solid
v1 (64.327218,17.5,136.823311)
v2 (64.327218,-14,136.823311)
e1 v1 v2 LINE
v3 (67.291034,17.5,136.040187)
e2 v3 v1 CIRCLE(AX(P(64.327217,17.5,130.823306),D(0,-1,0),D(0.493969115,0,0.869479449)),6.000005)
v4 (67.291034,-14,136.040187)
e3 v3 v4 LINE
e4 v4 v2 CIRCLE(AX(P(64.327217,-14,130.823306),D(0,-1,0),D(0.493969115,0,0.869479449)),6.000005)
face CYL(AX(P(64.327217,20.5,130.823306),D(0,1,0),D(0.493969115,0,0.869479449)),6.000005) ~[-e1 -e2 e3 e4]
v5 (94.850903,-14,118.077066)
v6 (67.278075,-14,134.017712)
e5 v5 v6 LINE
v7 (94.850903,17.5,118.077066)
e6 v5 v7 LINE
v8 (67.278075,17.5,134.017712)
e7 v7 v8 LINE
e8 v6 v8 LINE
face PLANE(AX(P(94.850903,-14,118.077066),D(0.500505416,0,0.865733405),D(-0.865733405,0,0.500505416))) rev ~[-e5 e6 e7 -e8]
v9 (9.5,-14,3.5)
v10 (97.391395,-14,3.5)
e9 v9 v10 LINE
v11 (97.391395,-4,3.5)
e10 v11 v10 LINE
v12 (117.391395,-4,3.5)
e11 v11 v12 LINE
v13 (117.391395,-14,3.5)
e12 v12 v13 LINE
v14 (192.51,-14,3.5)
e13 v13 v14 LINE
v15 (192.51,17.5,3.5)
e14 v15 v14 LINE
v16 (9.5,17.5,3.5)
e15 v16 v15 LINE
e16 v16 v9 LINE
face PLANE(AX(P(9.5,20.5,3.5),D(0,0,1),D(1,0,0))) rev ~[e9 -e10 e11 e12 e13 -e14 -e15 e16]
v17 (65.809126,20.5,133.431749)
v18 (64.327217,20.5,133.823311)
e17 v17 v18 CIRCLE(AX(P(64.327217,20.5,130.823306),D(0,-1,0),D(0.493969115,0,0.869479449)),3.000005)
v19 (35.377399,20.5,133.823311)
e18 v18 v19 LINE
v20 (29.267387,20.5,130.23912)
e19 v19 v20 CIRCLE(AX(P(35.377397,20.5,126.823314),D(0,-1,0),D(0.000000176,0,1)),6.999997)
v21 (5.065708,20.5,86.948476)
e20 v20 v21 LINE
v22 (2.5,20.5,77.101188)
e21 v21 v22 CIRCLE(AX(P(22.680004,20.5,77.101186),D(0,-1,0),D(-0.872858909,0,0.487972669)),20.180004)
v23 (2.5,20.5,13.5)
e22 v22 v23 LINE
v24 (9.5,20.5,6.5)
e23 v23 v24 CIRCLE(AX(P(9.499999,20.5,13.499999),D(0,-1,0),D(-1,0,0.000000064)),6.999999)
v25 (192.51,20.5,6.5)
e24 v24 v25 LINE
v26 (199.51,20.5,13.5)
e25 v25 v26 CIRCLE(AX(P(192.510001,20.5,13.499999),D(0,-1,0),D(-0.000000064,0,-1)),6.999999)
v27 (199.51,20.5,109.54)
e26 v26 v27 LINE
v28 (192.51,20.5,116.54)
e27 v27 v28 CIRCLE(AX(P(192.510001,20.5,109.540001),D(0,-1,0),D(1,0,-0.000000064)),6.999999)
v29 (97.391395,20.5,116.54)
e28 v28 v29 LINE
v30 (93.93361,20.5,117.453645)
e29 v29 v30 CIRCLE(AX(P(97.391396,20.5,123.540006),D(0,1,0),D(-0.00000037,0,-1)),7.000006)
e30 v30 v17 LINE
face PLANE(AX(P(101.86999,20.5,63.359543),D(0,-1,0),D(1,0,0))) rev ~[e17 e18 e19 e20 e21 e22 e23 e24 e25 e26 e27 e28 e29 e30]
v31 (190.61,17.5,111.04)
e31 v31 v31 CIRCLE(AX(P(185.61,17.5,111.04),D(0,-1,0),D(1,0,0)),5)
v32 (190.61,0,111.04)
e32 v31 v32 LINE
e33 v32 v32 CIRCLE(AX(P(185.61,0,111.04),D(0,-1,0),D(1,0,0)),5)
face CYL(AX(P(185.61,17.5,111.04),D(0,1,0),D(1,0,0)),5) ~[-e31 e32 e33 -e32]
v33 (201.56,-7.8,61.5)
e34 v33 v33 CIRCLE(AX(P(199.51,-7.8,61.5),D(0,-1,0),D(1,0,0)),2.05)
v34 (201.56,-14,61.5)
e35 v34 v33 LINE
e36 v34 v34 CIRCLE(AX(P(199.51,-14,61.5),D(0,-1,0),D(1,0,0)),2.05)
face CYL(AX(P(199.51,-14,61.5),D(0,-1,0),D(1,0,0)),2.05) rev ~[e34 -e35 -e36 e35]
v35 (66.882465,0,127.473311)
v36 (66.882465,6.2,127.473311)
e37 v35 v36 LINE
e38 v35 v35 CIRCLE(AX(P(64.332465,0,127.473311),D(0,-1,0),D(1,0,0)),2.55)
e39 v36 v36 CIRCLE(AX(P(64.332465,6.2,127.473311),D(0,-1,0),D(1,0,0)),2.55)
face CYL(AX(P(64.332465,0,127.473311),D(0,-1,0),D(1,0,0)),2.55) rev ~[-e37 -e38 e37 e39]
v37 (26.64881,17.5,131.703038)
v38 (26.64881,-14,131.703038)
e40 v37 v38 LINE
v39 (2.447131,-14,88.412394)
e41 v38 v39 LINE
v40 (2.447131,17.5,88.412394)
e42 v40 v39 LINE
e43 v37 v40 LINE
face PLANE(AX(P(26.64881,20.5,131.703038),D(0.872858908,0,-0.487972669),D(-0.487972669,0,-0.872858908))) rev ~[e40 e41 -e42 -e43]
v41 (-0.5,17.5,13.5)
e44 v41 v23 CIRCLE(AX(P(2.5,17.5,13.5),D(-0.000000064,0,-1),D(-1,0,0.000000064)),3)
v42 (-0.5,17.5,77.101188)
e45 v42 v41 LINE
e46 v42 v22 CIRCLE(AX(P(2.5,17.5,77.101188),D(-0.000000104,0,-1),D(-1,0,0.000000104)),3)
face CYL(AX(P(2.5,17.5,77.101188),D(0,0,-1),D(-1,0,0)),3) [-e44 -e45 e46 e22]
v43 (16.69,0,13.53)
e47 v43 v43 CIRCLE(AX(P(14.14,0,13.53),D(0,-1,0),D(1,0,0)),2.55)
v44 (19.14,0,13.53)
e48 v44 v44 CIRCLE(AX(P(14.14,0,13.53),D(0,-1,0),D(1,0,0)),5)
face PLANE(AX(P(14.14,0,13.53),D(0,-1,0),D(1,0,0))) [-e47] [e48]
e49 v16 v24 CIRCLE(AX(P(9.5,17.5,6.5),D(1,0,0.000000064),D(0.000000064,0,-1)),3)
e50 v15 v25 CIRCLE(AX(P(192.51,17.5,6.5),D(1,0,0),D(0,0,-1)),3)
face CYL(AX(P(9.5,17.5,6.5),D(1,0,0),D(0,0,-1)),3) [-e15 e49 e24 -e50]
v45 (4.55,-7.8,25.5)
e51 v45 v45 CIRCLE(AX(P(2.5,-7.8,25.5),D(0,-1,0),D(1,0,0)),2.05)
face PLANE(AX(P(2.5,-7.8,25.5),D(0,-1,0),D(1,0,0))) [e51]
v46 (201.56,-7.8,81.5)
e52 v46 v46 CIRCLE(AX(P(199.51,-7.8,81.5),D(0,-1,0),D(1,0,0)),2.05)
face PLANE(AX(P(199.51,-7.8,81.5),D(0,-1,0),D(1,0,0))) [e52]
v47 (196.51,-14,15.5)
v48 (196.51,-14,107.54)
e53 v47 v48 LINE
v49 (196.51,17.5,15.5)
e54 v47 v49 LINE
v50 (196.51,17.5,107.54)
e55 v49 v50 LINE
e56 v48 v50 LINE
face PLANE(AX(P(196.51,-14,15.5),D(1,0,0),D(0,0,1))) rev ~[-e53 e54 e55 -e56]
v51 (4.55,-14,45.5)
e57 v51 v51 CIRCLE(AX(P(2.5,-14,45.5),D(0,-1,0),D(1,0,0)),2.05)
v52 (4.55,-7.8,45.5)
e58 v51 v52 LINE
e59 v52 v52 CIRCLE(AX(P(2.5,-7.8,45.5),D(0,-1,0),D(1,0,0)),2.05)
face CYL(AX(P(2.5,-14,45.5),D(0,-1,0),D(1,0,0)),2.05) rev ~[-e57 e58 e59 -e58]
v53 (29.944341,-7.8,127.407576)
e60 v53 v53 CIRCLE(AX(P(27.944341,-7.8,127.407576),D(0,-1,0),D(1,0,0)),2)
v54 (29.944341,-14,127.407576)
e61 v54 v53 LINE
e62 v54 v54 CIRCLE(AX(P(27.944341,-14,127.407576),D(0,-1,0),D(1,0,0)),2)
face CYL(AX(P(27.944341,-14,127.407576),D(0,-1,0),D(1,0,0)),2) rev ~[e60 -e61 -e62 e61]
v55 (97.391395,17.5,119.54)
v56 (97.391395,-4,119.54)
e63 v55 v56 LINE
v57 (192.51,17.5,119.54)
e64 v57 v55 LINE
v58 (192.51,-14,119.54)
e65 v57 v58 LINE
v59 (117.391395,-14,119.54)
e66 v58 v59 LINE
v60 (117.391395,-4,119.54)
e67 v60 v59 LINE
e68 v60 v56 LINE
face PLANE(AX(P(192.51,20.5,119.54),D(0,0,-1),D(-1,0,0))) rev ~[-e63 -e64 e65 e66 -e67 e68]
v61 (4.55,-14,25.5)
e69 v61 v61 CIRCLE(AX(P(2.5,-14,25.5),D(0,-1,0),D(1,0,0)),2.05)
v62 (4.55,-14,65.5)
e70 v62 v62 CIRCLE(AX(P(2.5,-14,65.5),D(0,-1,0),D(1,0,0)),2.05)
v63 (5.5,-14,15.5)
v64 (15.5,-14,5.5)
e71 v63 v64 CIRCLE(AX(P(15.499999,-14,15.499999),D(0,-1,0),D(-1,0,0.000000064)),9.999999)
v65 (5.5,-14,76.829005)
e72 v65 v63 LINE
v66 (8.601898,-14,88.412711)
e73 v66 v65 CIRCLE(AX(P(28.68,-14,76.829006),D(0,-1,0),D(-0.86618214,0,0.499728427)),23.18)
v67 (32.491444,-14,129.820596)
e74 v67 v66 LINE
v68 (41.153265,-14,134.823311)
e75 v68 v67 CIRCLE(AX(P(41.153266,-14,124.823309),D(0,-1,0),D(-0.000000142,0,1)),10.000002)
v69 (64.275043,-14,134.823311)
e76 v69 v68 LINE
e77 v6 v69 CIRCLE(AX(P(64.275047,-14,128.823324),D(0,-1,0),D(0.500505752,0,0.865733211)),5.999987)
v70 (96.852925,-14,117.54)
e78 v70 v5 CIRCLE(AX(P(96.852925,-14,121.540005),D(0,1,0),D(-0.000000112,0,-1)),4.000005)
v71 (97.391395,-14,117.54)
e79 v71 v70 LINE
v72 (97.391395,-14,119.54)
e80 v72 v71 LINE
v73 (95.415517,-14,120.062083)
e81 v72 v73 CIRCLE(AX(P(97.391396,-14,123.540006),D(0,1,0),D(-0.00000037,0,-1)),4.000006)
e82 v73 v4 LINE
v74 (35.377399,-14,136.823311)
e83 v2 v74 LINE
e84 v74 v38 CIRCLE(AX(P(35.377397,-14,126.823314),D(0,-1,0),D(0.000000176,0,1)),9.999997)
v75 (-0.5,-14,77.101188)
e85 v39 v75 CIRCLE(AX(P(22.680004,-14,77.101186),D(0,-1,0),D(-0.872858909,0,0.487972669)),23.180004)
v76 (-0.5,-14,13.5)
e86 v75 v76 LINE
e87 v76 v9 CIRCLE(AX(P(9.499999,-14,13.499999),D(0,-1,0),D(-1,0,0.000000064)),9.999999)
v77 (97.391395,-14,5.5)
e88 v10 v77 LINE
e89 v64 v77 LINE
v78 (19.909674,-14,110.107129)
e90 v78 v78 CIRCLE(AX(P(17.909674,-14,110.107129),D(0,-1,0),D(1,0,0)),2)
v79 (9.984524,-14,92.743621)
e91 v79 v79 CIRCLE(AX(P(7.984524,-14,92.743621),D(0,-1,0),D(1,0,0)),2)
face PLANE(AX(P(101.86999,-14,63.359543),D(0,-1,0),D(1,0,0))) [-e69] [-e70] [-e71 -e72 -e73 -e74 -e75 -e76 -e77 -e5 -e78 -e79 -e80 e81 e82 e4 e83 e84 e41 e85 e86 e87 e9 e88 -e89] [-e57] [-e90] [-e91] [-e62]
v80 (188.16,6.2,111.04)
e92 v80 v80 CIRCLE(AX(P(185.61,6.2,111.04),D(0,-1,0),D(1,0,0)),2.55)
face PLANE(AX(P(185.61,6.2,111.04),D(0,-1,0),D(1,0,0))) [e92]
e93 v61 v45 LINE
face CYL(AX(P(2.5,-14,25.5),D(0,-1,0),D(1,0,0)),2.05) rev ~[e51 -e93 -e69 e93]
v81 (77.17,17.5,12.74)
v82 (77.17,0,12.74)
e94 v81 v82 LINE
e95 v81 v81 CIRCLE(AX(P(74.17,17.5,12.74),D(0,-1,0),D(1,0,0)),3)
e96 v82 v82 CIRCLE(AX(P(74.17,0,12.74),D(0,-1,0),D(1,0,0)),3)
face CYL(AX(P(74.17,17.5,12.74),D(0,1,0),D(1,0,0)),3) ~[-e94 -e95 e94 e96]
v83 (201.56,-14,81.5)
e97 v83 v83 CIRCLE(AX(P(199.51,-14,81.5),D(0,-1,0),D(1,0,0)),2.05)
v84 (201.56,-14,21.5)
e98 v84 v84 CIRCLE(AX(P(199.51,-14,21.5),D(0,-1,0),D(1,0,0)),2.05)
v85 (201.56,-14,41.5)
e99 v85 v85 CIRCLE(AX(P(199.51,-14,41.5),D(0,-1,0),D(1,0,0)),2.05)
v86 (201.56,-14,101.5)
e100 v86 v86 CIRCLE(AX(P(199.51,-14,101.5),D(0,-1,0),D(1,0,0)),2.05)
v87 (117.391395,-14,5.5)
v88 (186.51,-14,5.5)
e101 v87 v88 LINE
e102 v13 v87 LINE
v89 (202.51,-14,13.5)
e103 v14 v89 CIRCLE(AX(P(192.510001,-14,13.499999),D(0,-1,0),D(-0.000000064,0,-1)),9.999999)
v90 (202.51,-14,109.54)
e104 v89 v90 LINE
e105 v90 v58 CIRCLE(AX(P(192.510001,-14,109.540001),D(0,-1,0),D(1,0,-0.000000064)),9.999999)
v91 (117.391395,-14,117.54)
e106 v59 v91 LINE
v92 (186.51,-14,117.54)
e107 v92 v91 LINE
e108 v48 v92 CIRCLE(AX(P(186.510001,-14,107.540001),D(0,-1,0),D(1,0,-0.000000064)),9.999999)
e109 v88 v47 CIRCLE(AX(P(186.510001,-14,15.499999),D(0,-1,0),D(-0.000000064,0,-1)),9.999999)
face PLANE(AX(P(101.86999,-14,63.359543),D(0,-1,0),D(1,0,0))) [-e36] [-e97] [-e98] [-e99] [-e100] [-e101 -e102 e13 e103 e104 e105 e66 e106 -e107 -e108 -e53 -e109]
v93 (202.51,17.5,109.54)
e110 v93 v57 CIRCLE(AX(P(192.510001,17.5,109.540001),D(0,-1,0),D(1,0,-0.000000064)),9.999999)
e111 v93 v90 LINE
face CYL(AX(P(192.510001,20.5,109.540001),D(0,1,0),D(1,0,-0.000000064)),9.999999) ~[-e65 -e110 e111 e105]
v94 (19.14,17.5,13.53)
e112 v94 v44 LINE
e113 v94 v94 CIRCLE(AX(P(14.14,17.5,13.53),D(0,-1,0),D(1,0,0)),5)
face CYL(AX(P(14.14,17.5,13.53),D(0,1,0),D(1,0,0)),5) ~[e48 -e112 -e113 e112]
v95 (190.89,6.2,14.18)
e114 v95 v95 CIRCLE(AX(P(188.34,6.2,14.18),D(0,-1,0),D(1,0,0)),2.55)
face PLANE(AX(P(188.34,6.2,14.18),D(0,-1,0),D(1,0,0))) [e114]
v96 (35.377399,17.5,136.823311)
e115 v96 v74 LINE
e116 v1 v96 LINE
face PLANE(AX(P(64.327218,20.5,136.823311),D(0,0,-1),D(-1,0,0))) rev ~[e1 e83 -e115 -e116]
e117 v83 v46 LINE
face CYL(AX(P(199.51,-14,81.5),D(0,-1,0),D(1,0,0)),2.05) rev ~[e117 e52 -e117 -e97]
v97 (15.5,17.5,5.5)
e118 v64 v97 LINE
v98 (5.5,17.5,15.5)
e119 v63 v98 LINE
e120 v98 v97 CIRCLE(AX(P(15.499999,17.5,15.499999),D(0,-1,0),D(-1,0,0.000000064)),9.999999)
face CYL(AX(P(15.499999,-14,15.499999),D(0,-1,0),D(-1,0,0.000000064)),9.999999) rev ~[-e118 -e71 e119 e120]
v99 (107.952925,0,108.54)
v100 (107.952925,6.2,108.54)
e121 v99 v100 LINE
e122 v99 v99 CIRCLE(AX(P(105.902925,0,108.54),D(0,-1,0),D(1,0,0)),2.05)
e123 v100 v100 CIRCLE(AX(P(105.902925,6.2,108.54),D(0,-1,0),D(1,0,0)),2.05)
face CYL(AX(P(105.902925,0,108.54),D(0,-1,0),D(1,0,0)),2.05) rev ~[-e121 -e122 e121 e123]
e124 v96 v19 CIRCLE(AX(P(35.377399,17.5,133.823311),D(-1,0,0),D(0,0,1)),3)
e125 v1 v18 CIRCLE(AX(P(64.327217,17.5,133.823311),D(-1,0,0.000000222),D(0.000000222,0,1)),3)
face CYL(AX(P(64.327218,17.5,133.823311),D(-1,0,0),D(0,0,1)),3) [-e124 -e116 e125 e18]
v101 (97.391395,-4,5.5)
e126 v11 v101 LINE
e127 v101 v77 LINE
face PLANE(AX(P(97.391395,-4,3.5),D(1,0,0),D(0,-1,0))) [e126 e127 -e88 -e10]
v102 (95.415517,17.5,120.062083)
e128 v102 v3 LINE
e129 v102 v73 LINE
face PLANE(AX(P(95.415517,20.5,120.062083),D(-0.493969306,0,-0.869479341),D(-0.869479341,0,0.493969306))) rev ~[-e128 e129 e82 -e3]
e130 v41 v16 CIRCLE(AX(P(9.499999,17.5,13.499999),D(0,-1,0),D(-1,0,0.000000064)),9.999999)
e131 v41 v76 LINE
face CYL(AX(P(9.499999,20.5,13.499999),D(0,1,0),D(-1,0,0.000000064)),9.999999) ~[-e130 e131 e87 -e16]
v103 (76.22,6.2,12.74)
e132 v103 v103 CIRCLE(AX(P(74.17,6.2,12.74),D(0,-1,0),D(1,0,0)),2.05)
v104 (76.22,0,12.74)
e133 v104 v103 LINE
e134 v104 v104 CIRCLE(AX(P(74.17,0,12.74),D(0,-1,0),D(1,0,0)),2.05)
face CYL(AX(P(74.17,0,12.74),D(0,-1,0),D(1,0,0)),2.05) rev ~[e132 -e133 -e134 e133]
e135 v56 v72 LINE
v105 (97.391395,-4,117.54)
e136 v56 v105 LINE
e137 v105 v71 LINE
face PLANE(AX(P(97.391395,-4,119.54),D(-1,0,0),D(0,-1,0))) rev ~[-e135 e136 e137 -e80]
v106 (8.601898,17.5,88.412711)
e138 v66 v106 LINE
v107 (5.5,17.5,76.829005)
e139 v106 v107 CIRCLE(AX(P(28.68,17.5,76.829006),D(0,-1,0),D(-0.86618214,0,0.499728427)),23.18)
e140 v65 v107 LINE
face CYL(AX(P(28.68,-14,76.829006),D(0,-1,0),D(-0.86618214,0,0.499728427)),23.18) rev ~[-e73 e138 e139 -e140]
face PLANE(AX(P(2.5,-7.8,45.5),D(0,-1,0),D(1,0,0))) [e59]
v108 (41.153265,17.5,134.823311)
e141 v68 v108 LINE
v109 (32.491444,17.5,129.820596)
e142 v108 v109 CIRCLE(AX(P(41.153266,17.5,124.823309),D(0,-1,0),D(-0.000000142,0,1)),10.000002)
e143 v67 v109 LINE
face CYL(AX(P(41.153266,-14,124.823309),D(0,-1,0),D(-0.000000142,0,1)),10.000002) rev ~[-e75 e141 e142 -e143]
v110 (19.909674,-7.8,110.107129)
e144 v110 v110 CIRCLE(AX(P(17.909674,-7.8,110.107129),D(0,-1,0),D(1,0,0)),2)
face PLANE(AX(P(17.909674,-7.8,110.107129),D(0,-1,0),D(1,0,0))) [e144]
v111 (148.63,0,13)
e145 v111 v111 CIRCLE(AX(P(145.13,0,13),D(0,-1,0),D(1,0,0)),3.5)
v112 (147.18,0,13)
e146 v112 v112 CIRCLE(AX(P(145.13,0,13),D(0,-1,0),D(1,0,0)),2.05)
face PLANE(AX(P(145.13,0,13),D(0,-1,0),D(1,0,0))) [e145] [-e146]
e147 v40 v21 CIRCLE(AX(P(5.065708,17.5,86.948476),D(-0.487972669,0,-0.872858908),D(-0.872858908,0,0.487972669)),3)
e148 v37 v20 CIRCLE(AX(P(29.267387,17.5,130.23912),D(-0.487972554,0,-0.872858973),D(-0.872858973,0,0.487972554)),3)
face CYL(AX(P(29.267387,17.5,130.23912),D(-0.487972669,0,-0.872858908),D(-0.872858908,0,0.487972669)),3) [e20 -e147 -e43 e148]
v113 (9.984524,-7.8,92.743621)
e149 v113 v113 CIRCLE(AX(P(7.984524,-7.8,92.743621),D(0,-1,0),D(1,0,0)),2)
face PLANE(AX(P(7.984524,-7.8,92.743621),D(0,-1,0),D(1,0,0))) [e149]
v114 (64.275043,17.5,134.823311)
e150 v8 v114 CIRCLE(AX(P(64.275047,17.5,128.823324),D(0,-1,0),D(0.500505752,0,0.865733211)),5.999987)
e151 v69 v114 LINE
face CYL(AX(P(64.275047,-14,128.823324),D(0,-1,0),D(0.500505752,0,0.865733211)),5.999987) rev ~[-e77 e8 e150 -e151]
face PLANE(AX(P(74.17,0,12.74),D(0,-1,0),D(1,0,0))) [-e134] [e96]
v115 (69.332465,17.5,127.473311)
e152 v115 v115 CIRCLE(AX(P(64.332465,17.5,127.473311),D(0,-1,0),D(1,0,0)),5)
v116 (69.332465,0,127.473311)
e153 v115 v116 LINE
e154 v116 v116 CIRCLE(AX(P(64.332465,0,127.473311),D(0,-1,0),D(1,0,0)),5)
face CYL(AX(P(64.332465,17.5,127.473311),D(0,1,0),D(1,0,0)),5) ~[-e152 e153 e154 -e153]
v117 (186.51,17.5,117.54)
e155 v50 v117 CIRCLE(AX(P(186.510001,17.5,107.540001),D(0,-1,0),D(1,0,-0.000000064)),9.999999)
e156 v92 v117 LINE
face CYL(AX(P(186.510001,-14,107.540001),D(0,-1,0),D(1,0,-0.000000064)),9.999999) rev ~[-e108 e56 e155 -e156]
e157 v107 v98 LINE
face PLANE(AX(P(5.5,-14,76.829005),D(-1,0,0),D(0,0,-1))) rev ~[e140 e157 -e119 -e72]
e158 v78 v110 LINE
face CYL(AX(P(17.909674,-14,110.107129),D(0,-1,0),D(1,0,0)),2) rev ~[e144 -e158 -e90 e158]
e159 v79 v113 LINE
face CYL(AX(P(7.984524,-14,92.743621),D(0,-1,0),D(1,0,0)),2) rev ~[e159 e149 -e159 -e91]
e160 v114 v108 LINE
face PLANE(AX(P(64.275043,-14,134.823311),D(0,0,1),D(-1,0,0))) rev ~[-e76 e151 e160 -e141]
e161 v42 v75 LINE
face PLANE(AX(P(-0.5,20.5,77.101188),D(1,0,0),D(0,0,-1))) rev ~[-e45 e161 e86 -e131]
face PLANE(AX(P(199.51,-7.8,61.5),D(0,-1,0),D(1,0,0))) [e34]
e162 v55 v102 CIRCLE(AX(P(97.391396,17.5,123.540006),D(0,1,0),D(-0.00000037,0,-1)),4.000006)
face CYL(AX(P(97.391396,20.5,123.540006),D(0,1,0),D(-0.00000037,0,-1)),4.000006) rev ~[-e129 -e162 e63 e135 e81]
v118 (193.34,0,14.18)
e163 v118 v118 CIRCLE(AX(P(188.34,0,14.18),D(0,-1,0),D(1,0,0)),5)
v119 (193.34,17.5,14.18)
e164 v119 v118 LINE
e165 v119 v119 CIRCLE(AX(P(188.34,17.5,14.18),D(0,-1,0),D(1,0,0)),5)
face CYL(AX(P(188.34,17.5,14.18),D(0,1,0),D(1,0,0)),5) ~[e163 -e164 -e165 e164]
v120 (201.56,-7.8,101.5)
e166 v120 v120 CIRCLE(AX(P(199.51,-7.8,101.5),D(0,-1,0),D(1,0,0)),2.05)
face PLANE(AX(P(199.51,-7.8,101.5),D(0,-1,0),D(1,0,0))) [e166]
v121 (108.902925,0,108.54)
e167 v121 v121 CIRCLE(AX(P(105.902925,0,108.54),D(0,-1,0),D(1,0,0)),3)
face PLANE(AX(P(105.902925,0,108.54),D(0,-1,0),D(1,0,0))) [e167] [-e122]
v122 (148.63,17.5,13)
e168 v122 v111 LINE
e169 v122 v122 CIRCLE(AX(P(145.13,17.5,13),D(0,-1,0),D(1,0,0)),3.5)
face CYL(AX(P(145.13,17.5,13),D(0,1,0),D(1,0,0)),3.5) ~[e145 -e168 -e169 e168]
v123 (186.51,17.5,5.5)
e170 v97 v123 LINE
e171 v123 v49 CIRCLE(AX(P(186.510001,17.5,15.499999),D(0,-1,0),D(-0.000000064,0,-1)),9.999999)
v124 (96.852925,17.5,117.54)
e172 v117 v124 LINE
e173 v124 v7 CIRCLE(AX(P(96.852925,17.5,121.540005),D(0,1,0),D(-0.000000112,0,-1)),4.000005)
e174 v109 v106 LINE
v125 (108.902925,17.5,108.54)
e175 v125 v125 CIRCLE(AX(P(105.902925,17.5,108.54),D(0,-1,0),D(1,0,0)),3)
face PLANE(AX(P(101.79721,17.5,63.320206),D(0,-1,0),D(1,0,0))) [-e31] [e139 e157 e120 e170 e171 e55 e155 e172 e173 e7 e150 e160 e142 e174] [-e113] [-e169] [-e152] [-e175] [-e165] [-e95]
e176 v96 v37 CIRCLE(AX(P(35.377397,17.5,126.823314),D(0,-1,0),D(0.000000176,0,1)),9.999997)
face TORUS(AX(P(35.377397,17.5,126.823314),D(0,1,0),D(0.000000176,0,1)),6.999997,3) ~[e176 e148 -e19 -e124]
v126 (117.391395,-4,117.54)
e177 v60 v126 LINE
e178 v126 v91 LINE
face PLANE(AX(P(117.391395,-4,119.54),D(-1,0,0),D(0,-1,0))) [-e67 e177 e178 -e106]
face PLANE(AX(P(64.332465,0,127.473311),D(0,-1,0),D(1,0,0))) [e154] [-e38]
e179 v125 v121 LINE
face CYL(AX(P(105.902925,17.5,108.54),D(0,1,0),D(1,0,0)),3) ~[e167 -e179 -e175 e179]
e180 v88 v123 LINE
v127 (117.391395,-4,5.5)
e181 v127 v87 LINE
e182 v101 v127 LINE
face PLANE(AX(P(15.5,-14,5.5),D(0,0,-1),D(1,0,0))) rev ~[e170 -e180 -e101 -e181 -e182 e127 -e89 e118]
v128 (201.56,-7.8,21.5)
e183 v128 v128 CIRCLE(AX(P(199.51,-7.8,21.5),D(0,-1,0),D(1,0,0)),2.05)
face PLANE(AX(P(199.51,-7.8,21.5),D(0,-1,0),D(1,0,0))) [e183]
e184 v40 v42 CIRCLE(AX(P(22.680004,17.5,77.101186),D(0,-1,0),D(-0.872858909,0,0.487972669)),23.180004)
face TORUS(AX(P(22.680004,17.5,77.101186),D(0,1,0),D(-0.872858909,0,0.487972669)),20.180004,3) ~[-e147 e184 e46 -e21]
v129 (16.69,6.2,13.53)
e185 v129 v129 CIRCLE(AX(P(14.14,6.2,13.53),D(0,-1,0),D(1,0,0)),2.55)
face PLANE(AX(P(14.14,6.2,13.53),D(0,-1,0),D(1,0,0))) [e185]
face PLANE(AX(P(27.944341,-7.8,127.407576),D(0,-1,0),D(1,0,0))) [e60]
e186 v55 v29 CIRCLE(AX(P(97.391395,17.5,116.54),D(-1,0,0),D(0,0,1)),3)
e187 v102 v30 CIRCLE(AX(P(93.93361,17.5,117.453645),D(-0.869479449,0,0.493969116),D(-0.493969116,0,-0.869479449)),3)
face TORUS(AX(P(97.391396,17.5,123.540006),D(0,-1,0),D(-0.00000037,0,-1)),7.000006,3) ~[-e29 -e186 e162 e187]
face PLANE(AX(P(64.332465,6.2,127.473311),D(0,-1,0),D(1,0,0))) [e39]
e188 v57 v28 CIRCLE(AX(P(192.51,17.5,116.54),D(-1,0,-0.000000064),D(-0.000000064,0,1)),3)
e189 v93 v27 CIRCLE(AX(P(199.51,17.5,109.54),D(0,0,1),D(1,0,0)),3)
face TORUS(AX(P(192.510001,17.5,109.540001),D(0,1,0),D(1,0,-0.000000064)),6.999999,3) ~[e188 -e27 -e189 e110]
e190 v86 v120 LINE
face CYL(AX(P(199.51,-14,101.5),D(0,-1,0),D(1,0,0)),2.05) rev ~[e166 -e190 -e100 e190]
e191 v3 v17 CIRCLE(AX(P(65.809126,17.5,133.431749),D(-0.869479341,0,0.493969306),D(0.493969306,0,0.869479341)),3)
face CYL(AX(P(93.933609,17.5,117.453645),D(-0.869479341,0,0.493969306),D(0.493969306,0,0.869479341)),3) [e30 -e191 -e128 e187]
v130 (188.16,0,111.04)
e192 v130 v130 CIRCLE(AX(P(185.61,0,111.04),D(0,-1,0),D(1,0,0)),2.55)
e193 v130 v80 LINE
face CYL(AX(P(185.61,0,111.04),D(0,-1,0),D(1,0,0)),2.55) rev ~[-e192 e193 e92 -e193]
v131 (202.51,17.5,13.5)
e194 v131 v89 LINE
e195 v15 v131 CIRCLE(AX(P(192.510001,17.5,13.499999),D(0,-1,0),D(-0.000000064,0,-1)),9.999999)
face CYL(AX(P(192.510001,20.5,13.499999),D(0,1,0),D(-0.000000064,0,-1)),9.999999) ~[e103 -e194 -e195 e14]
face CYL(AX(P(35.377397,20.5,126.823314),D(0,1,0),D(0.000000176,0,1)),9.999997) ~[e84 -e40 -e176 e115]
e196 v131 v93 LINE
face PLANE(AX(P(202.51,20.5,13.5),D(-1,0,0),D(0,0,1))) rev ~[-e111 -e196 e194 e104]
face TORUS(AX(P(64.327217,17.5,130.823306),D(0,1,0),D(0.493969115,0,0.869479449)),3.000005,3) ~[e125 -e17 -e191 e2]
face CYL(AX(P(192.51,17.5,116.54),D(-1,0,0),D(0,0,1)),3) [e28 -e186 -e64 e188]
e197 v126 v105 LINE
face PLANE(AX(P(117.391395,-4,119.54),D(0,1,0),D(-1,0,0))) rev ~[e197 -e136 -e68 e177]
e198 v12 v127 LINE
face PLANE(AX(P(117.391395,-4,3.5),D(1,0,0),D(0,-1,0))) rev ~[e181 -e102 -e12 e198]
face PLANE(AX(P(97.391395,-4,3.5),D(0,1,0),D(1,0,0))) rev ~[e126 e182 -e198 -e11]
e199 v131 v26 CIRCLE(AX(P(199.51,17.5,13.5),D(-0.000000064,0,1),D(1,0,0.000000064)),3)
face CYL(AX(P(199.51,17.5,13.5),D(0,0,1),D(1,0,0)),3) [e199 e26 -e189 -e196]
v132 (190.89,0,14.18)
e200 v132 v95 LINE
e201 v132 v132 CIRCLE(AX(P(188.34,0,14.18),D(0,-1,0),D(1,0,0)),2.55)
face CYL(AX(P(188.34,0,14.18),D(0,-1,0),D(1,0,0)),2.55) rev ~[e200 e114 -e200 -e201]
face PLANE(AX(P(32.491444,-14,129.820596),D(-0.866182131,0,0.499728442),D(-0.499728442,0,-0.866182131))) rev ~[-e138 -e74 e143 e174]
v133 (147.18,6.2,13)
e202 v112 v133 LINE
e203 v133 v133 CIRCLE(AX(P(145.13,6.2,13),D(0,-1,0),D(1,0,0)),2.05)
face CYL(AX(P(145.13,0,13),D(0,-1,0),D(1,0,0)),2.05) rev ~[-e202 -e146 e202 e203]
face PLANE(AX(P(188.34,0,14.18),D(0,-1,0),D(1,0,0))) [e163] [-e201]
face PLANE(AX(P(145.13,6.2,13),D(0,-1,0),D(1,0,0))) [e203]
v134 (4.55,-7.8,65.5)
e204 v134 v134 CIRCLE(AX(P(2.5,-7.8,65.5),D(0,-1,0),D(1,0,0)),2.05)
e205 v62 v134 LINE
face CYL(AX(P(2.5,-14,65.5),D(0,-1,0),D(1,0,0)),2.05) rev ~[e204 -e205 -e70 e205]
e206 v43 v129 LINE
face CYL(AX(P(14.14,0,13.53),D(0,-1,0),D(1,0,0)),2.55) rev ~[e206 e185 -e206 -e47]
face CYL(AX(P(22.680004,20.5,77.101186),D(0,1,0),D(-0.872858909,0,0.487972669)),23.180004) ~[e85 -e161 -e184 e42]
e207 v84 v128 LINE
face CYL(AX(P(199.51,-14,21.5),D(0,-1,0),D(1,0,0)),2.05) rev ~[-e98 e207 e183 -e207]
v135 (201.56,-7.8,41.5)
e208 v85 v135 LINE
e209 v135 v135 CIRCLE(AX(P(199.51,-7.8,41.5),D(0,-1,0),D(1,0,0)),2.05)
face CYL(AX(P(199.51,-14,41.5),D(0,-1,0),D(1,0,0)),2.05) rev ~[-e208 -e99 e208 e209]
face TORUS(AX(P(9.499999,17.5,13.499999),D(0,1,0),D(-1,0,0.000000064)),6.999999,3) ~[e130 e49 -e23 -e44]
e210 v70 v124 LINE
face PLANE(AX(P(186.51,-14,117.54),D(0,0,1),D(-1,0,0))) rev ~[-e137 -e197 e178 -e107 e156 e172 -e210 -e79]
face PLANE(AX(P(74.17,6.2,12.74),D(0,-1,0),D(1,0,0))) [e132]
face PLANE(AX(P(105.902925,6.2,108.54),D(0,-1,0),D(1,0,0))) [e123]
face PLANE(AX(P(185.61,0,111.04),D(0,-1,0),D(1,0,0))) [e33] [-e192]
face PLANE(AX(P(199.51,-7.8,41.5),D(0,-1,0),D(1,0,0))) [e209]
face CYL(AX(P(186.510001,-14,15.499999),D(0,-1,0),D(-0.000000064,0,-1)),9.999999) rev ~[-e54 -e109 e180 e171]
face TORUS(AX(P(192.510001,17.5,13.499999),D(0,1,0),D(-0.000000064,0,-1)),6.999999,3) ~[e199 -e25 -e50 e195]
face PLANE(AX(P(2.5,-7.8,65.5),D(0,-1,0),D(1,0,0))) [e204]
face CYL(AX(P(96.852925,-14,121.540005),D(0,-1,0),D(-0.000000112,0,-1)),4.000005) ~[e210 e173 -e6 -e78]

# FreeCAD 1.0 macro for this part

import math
import FreeCAD as App
import Part
import Sketcher
from FreeCAD import Vector


def edges_at(feature, points):
    """Names of the edges that pass closest to the given points."""
    edges = feature.Shape.Edges
    near = lambda p: min(range(len(edges)), key=lambda i: edges[i].distToShape(Part.Vertex(*p))[0])
    return sorted({f"Edge{near(p) + 1}" for p in points})

doc = App.newDocument("Part")
body = doc.addObject("PartDesign::Body", "Body")

sketch1 = doc.addObject("Sketcher::SketchObject", "Sketch")
body.addObject(sketch1)
sketch1.AttachmentSupport = (doc.XZ_Plane, [""])
sketch1.MapMode = "FlatFace"
sketch1.addGeometry(Part.ArcOfCircle(Part.Circle(Vector(9.499999, 13.499999, 0), Vector(0, 0, 1), 9.999999), math.radians(179.999996), math.radians(270.000004)), False)
sketch1.addGeometry(Part.LineSegment(Vector(9.5, 3.5, 0), Vector(192.51, 3.5, 0)), False)
sketch1.addGeometry(Part.ArcOfCircle(Part.Circle(Vector(192.510001, 13.499999, 0), Vector(0, 0, 1), 9.999999), math.radians(-90.000004), math.radians(0.000004)), False)
sketch1.addGeometry(Part.LineSegment(Vector(202.51, 13.5, 0), Vector(202.51, 109.54, 0)), False)
sketch1.addGeometry(Part.ArcOfCircle(Part.Circle(Vector(192.510001, 109.540001, 0), Vector(0, 0, 1), 9.999999), math.radians(-0.000004), math.radians(90.000004)), False)
sketch1.addGeometry(Part.LineSegment(Vector(192.51, 119.54, 0), Vector(97.391395, 119.54, 0)), False)
sketch1.addGeometry(Part.ArcOfCircle(Part.Circle(Vector(97.391396, 123.540006, 0), Vector(0, 0, 1), 4.000006), math.radians(-119.601796), math.radians(-90.000021)), False)
sketch1.addGeometry(Part.LineSegment(Vector(95.415517, 120.062083, 0), Vector(67.291034, 136.040187, 0)), False)
sketch1.addGeometry(Part.ArcOfCircle(Part.Circle(Vector(64.327217, 130.823306, 0), Vector(0, 0, 1), 6.000005), math.radians(60.398204), math.radians(89.999987)), False)
sketch1.addGeometry(Part.LineSegment(Vector(64.327218, 136.823311, 0), Vector(35.377399, 136.823311, 0)), False)
sketch1.addGeometry(Part.ArcOfCircle(Part.Circle(Vector(35.377397, 126.823314, 0), Vector(0, 0, 1), 9.999997), math.radians(89.99999), math.radians(150.79259)), False)
sketch1.addGeometry(Part.LineSegment(Vector(26.64881, 131.703038, 0), Vector(2.447131, 88.412394, 0)), False)
sketch1.addGeometry(Part.ArcOfCircle(Part.Circle(Vector(22.680004, 77.101186, 0), Vector(0, 0, 1), 23.180004), math.radians(150.792582), math.radians(179.999994)), False)
sketch1.addGeometry(Part.LineSegment(Vector(-0.5, 77.101188, 0), Vector(-0.5, 13.5, 0)), False)
sketch1.addConstraint(Sketcher.Constraint("Tangent", 0, 2, 1, 1))
sketch1.addConstraint(Sketcher.Constraint("Tangent", 1, 2, 2, 1))
sketch1.addConstraint(Sketcher.Constraint("Tangent", 2, 2, 3, 1))
sketch1.addConstraint(Sketcher.Constraint("Tangent", 3, 2, 4, 1))
sketch1.addConstraint(Sketcher.Constraint("Tangent", 4, 2, 5, 1))
sketch1.addConstraint(Sketcher.Constraint("Tangent", 5, 2, 6, 2))
sketch1.addConstraint(Sketcher.Constraint("Tangent", 6, 1, 7, 1))
sketch1.addConstraint(Sketcher.Constraint("Tangent", 7, 2, 8, 1))
sketch1.addConstraint(Sketcher.Constraint("Tangent", 8, 2, 9, 1))
sketch1.addConstraint(Sketcher.Constraint("Tangent", 9, 2, 10, 1))
sketch1.addConstraint(Sketcher.Constraint("Tangent", 10, 2, 11, 1))
sketch1.addConstraint(Sketcher.Constraint("Tangent", 11, 2, 12, 1))
sketch1.addConstraint(Sketcher.Constraint("Tangent", 12, 2, 13, 1))
sketch1.addConstraint(Sketcher.Constraint("Tangent", 13, 2, 0, 1))
sketch1.addConstraint(Sketcher.Constraint("Horizontal", 1))
sketch1.addConstraint(Sketcher.Constraint("Vertical", 3))
sketch1.addConstraint(Sketcher.Constraint("Horizontal", 5))
sketch1.addConstraint(Sketcher.Constraint("Horizontal", 9))
sketch1.addConstraint(Sketcher.Constraint("Vertical", 13))
sketch1.addConstraint(Sketcher.Constraint("Equal", 0, 2))
sketch1.addConstraint(Sketcher.Constraint("Equal", 2, 4))
sketch1.addConstraint(Sketcher.Constraint("Radius", 0, 9.999999))
sketch1.addConstraint(Sketcher.Constraint("DistanceX", 1, 1, 1, 2, 183.01))
sketch1.addConstraint(Sketcher.Constraint("DistanceY", 3, 1, 3, 2, 96.04))
sketch1.addConstraint(Sketcher.Constraint("DistanceX", -1, 1, 0, 3, 9.499999))
sketch1.addConstraint(Sketcher.Constraint("DistanceY", -1, 1, 0, 3, 13.499999))
sketch1.addConstraint(Sketcher.Constraint("Radius", 6, 4.000006))
sketch1.addConstraint(Sketcher.Constraint("Radius", 8, 6.000005))
sketch1.addConstraint(Sketcher.Constraint("Radius", 10, 9.999997))
sketch1.addConstraint(Sketcher.Constraint("Radius", 12, 23.180004))
sketch1.addConstraint(Sketcher.Constraint("DistanceX", 10, 3, 6, 3, 62.013999))
sketch1.addConstraint(Sketcher.Constraint("DistanceX", 9, 2, 9, 1, 28.949819))
sketch1.addConstraint(Sketcher.Constraint("DistanceX", -1, 1, 9, 2, 35.377399))
sketch1.addConstraint(Sketcher.Constraint("DistanceY", 6, 3, 8, 3, 7.2833))
sketch1.addConstraint(Sketcher.Constraint("DistanceY", 13, 2, 13, 1, 63.601188))
pad1 = doc.addObject("PartDesign::Pad", "Pad")
body.addObject(pad1)
pad1.Profile = sketch1
pad1.Length = 34.5

sketch2 = doc.addObject("Sketcher::SketchObject", "Sketch001")
body.addObject(sketch2)
sketch2.AttachmentSupport = (doc.XZ_Plane, [""])
sketch2.MapMode = "FlatFace"
sketch2.AttachmentOffset = App.Placement(Vector(0, 0, 34.5), App.Rotation())
sketch2.addGeometry(Part.ArcOfCircle(Part.Circle(Vector(15.499999, 15.499999, 0), Vector(0, 0, 1), 9.999999), math.radians(179.999996), math.radians(270.000004)), False)
sketch2.addGeometry(Part.LineSegment(Vector(15.5, 5.5, 0), Vector(186.51, 5.5, 0)), False)
sketch2.addGeometry(Part.ArcOfCircle(Part.Circle(Vector(186.510001, 15.499999, 0), Vector(0, 0, 1), 9.999999), math.radians(-90.000004), math.radians(0.000004)), False)
sketch2.addGeometry(Part.LineSegment(Vector(196.51, 15.5, 0), Vector(196.51, 107.54, 0)), False)
sketch2.addGeometry(Part.ArcOfCircle(Part.Circle(Vector(186.510001, 107.540001, 0), Vector(0, 0, 1), 9.999999), math.radians(-0.000004), math.radians(90.000004)), False)
sketch2.addGeometry(Part.LineSegment(Vector(186.51, 117.54, 0), Vector(96.852925, 117.54, 0)), False)
sketch2.addGeometry(Part.ArcOfCircle(Part.Circle(Vector(96.852925, 121.540005, 0), Vector(0, 0, 1), 4.000005), math.radians(-120.033412), math.radians(-90.000006)), False)
sketch2.addGeometry(Part.LineSegment(Vector(94.850903, 118.077066, 0), Vector(67.278075, 134.017712, 0)), False)
sketch2.addGeometry(Part.ArcOfCircle(Part.Circle(Vector(64.275047, 128.823324, 0), Vector(0, 0, 1), 5.999987), math.radians(59.966534), math.radians(90.000038)), False)
sketch2.addGeometry(Part.LineSegment(Vector(64.275043, 134.823311, 0), Vector(41.153265, 134.823311, 0)), False)
sketch2.addGeometry(Part.ArcOfCircle(Part.Circle(Vector(41.153266, 124.823309, 0), Vector(0, 0, 1), 10.000002), math.radians(90.000008), math.radians(150.017952)), False)
sketch2.addGeometry(Part.LineSegment(Vector(32.491444, 129.820596, 0), Vector(8.601898, 88.412711, 0)), False)
sketch2.addGeometry(Part.ArcOfCircle(Part.Circle(Vector(28.68, 76.829006, 0), Vector(0, 0, 1), 23.18), math.radians(150.017966), math.radians(180.000003)), False)
sketch2.addGeometry(Part.LineSegment(Vector(5.5, 76.829005, 0), Vector(5.5, 15.5, 0)), False)
sketch2.addConstraint(Sketcher.Constraint("Coincident", 0, 2, 1, 1))
sketch2.addConstraint(Sketcher.Constraint("Coincident", 1, 2, 2, 1))
sketch2.addConstraint(Sketcher.Constraint("Coincident", 2, 2, 3, 1))
sketch2.addConstraint(Sketcher.Constraint("Coincident", 3, 2, 4, 1))
sketch2.addConstraint(Sketcher.Constraint("Coincident", 4, 2, 5, 1))
sketch2.addConstraint(Sketcher.Constraint("Coincident", 5, 2, 6, 2))
sketch2.addConstraint(Sketcher.Constraint("Coincident", 6, 1, 7, 1))
sketch2.addConstraint(Sketcher.Constraint("Coincident", 7, 2, 8, 1))
sketch2.addConstraint(Sketcher.Constraint("Coincident", 8, 2, 9, 1))
sketch2.addConstraint(Sketcher.Constraint("Coincident", 9, 2, 10, 1))
sketch2.addConstraint(Sketcher.Constraint("Coincident", 10, 2, 11, 1))
sketch2.addConstraint(Sketcher.Constraint("Coincident", 11, 2, 12, 1))
sketch2.addConstraint(Sketcher.Constraint("Coincident", 12, 2, 13, 1))
sketch2.addConstraint(Sketcher.Constraint("Coincident", 13, 2, 0, 1))
sketch2.addConstraint(Sketcher.Constraint("Horizontal", 1))
sketch2.addConstraint(Sketcher.Constraint("Vertical", 3))
sketch2.addConstraint(Sketcher.Constraint("Horizontal", 5))
sketch2.addConstraint(Sketcher.Constraint("Horizontal", 9))
sketch2.addConstraint(Sketcher.Constraint("Vertical", 13))
sketch2.addConstraint(Sketcher.Constraint("Radius", 0, 9.999999))
sketch2.addConstraint(Sketcher.Constraint("Radius", 2, 9.999999))
sketch2.addConstraint(Sketcher.Constraint("Radius", 4, 9.999999))
sketch2.addConstraint(Sketcher.Constraint("Radius", 12, 23.18))
sketch2.addConstraint(Sketcher.Constraint("DistanceX", 1, 2, 2, 2, 10.0))
sketch2.addConstraint(Sketcher.Constraint("DistanceY", 1, 2, 2, 2, 10.0))
sketch2.addConstraint(Sketcher.Constraint("DistanceX", 4, 2, 3, 2, 10.0))
sketch2.addConstraint(Sketcher.Constraint("DistanceY", 3, 2, 4, 2, 10.0))
sketch2.addConstraint(Sketcher.Constraint("DistanceX", 13, 2, 0, 2, 10.0))
sketch2.addConstraint(Sketcher.Constraint("DistanceY", 0, 2, 13, 2, 10.0))
sketch2.addConstraint(Sketcher.Constraint("DistanceX", 1, 1, 1, 2, 171.01))
sketch2.addConstraint(Sketcher.Constraint("DistanceY", 3, 1, 3, 2, 92.04))
sketch2.addConstraint(Sketcher.Constraint("DistanceX", -1, 1, 0, 3, 15.499999))
sketch2.addConstraint(Sketcher.Constraint("DistanceY", -1, 1, 0, 3, 15.499999))
sketch2.addConstraint(Sketcher.Constraint("Radius", 6, 4.000005))
sketch2.addConstraint(Sketcher.Constraint("Radius", 8, 5.999987))
sketch2.addConstraint(Sketcher.Constraint("Radius", 10, 10.000002))
sketch2.addConstraint(Sketcher.Constraint("DistanceY", 12, 3, 6, 3, 44.710999))
sketch2.addConstraint(Sketcher.Constraint("DistanceY", 7, 2, 8, 2, 0.805599))
sketch2.addConstraint(Sketcher.Constraint("DistanceX", 10, 2, 8, 2, 31.783599))
sketch2.addConstraint(Sketcher.Constraint("DistanceY", 11, 2, 9, 2, 46.4106))
sketch2.addConstraint(Sketcher.Constraint("DistanceX", 13, 2, 11, 2, 3.101898))
sketch2.addConstraint(Sketcher.Constraint("DistanceX", 5, 2, 5, 1, 89.657075))
sketch2.addConstraint(Sketcher.Constraint("DistanceX", 9, 2, 9, 1, 23.121778))
sketch2.addConstraint(Sketcher.Constraint("DistanceY", 13, 2, 13, 1, 61.329005))
sketch2.addConstraint(Sketcher.Constraint("DistanceX", 8, 3, 6, 3, 32.577878))
sketch2.addConstraint(Sketcher.Constraint("DistanceX", 10, 3, 8, 3, 23.121781))
sketch2.addConstraint(Sketcher.Constraint("DistanceX", 8, 3, 5, 2, 32.577878))
sketch2.addConstraint(Sketcher.Constraint("DistanceX", 6, 1, 5, 2, 2.002022))
sketch2.addConstraint(Sketcher.Constraint("DistanceX", 8, 2, 6, 1, 30.57586))
pocket1 = doc.addObject("PartDesign::Pocket", "Pocket")
body.addObject(pocket1)
pocket1.Profile = sketch2
pocket1.Length = 31.5

sketch3 = doc.addObject("Sketcher::SketchObject", "Sketch002")
body.addObject(sketch3)
sketch3.AttachmentSupport = (doc.XZ_Plane, [""])
sketch3.MapMode = "FlatFace"
sketch3.AttachmentOffset = App.Placement(Vector(0, 0, 34.5), App.Rotation())
sketch3.addGeometry(Part.Circle(Vector(199.51, 21.5, 0), Vector(0, 0, 1), 2.05), False)
sketch3.addGeometry(Part.Circle(Vector(199.51, 101.5, 0), Vector(0, 0, 1), 2.05), False)
sketch3.addGeometry(Part.Circle(Vector(199.51, 41.5, 0), Vector(0, 0, 1), 2.05), False)
sketch3.addGeometry(Part.Circle(Vector(199.51, 81.5, 0), Vector(0, 0, 1), 2.05), False)
sketch3.addGeometry(Part.Circle(Vector(199.51, 61.5, 0), Vector(0, 0, 1), 2.05), False)
sketch3.addGeometry(Part.Circle(Vector(2.5, 25.5, 0), Vector(0, 0, 1), 2.05), False)
sketch3.addGeometry(Part.Circle(Vector(2.5, 45.5, 0), Vector(0, 0, 1), 2.05), False)
sketch3.addGeometry(Part.Circle(Vector(2.5, 65.5, 0), Vector(0, 0, 1), 2.05), False)
sketch3.addGeometry(Part.Circle(Vector(7.984524, 92.743621, 0), Vector(0, 0, 1), 2), False)
sketch3.addGeometry(Part.Circle(Vector(17.909674, 110.107129, 0), Vector(0, 0, 1), 2), False)
sketch3.addGeometry(Part.Circle(Vector(27.944341, 127.407576, 0), Vector(0, 0, 1), 2), False)
sketch3.addConstraint(Sketcher.Constraint("Equal", 0, 1))
sketch3.addConstraint(Sketcher.Constraint("Equal", 1, 2))
sketch3.addConstraint(Sketcher.Constraint("Equal", 2, 3))
sketch3.addConstraint(Sketcher.Constraint("Equal", 3, 4))
sketch3.addConstraint(Sketcher.Constraint("Equal", 4, 5))
sketch3.addConstraint(Sketcher.Constraint("Equal", 5, 6))
sketch3.addConstraint(Sketcher.Constraint("Equal", 6, 7))
sketch3.addConstraint(Sketcher.Constraint("Equal", 8, 9))
sketch3.addConstraint(Sketcher.Constraint("Equal", 9, 10))
sketch3.addConstraint(Sketcher.Constraint("Vertical", 0, 3, 1, 3))
sketch3.addConstraint(Sketcher.Constraint("Vertical", 1, 3, 2, 3))
sketch3.addConstraint(Sketcher.Constraint("Vertical", 2, 3, 3, 3))
sketch3.addConstraint(Sketcher.Constraint("Vertical", 3, 3, 4, 3))
sketch3.addConstraint(Sketcher.Constraint("Vertical", 5, 3, 6, 3))
sketch3.addConstraint(Sketcher.Constraint("Vertical", 6, 3, 7, 3))
sketch3.addConstraint(Sketcher.Constraint("Diameter", 8, 4.0))
sketch3.addConstraint(Sketcher.Constraint("Diameter", 0, 4.1))
sketch3.addConstraint(Sketcher.Constraint("DistanceY", 0, 3, 1, 3, 80.0))
sketch3.addConstraint(Sketcher.Constraint("DistanceY", 0, 3, 2, 3, 20.0))
sketch3.addConstraint(Sketcher.Constraint("DistanceY", 3, 3, 1, 3, 20.0))
sketch3.addConstraint(Sketcher.Constraint("DistanceY", 2, 3, 4, 3, 20.0))
sketch3.addConstraint(Sketcher.Constraint("DistanceY", 0, 3, 5, 3, 4.0))
sketch3.addConstraint(Sketcher.Constraint("DistanceY", 5, 3, 6, 3, 20.0))
sketch3.addConstraint(Sketcher.Constraint("DistanceY", 6, 3, 7, 3, 20.0))
sketch3.addConstraint(Sketcher.Constraint("DistanceY", -1, 1, 0, 3, 21.5))
sketch3.addConstraint(Sketcher.Constraint("DistanceX", -1, 1, 5, 3, 2.5))
sketch3.addConstraint(Sketcher.Constraint("DistanceX", -1, 1, 0, 3, 199.51))
sketch3.addConstraint(Sketcher.Constraint("DistanceY", -1, 1, 8, 3, 92.743621))
sketch3.addConstraint(Sketcher.Constraint("DistanceY", -1, 1, 9, 3, 110.107129))
sketch3.addConstraint(Sketcher.Constraint("DistanceX", -1, 1, 10, 3, 27.944341))
sketch3.addConstraint(Sketcher.Constraint("DistanceX", 8, 3, 9, 3, 9.92515))
sketch3.addConstraint(Sketcher.Constraint("DistanceX", -1, 1, 8, 3, 7.984524))
sketch3.addConstraint(Sketcher.Constraint("DistanceY", -1, 1, 10, 3, 127.407576))
pocket2 = doc.addObject("PartDesign::Pocket", "Pocket001")
body.addObject(pocket2)
pocket2.Profile = sketch3
pocket2.Length = 6.2

sketch4 = doc.addObject("Sketcher::SketchObject", "Sketch003")
body.addObject(sketch4)
sketch4.AttachmentSupport = (doc.XZ_Plane, [""])
sketch4.MapMode = "FlatFace"
sketch4.AttachmentOffset = App.Placement(Vector(0, 0, 3), App.Rotation())
sketch4.addGeometry(Part.Circle(Vector(74.17, 12.74, 0), Vector(0, 0, 1), 3), False)
sketch4.addGeometry(Part.Circle(Vector(64.332465, 127.473311, 0), Vector(0, 0, 1), 5), False)
sketch4.addGeometry(Part.Circle(Vector(105.902925, 108.54, 0), Vector(0, 0, 1), 3), False)
sketch4.addGeometry(Part.Circle(Vector(145.13, 13, 0), Vector(0, 0, 1), 3.5), False)
sketch4.addGeometry(Part.Circle(Vector(188.34, 14.18, 0), Vector(0, 0, 1), 5), False)
sketch4.addGeometry(Part.Circle(Vector(185.61, 111.04, 0), Vector(0, 0, 1), 5), False)
sketch4.addGeometry(Part.Circle(Vector(14.14, 13.53, 0), Vector(0, 0, 1), 5), False)
sketch4.addConstraint(Sketcher.Constraint("Equal", 0, 2))
sketch4.addConstraint(Sketcher.Constraint("Equal", 1, 4))
sketch4.addConstraint(Sketcher.Constraint("Equal", 4, 5))
sketch4.addConstraint(Sketcher.Constraint("Equal", 5, 6))
sketch4.addConstraint(Sketcher.Constraint("Diameter", 0, 6.0))
sketch4.addConstraint(Sketcher.Constraint("Diameter", 1, 10.0))
sketch4.addConstraint(Sketcher.Constraint("Diameter", 3, 7.0))
sketch4.addConstraint(Sketcher.Constraint("DistanceY", -1, 1, 3, 3, 13.0))
sketch4.addConstraint(Sketcher.Constraint("DistanceY", 0, 3, 2, 3, 95.8))
sketch4.addConstraint(Sketcher.Constraint("DistanceY", 2, 3, 5, 3, 2.5))
sketch4.addConstraint(Sketcher.Constraint("DistanceX", 6, 3, 4, 3, 174.2))
sketch4.addConstraint(Sketcher.Constraint("DistanceX", -1, 1, 0, 3, 74.17))
sketch4.addConstraint(Sketcher.Constraint("DistanceY", -1, 1, 0, 3, 12.74))
sketch4.addConstraint(Sketcher.Constraint("DistanceX", -1, 1, 3, 3, 145.13))
sketch4.addConstraint(Sketcher.Constraint("DistanceX", -1, 1, 4, 3, 188.34))
sketch4.addConstraint(Sketcher.Constraint("DistanceY", -1, 1, 4, 3, 14.18))
sketch4.addConstraint(Sketcher.Constraint("DistanceX", -1, 1, 5, 3, 185.61))
sketch4.addConstraint(Sketcher.Constraint("DistanceY", -1, 1, 6, 3, 13.53))
sketch4.addConstraint(Sketcher.Constraint("DistanceY", -1, 1, 1, 3, 127.473311))
sketch4.addConstraint(Sketcher.Constraint("DistanceX", 1, 3, 2, 3, 41.57046))
sketch4.addConstraint(Sketcher.Constraint("DistanceX", -1, 1, 1, 3, 64.332465))
pad2 = doc.addObject("PartDesign::Pad", "Pad001")
body.addObject(pad2)
pad2.Profile = sketch4
pad2.Length = 17.5

sketch5 = doc.addObject("Sketcher::SketchObject", "Sketch004")
body.addObject(sketch5)
sketch5.AttachmentSupport = (doc.XZ_Plane, [""])
sketch5.MapMode = "FlatFace"
sketch5.AttachmentOffset = App.Placement(Vector(0, 0, 20.5), App.Rotation())
sketch5.addGeometry(Part.Circle(Vector(64.332465, 127.473311, 0), Vector(0, 0, 1), 2.55), False)
sketch5.addGeometry(Part.Circle(Vector(105.902925, 108.54, 0), Vector(0, 0, 1), 2.05), False)
sketch5.addGeometry(Part.Circle(Vector(14.14, 13.53, 0), Vector(0, 0, 1), 2.55), False)
sketch5.addGeometry(Part.Circle(Vector(74.17, 12.74, 0), Vector(0, 0, 1), 2.05), False)
sketch5.addGeometry(Part.Circle(Vector(145.13, 13, 0), Vector(0, 0, 1), 2.05), False)
sketch5.addGeometry(Part.Circle(Vector(188.34, 14.18, 0), Vector(0, 0, 1), 2.55), False)
sketch5.addGeometry(Part.Circle(Vector(185.61, 111.04, 0), Vector(0, 0, 1), 2.55), False)
sketch5.addConstraint(Sketcher.Constraint("Equal", 0, 2))
sketch5.addConstraint(Sketcher.Constraint("Equal", 1, 3))
sketch5.addConstraint(Sketcher.Constraint("Equal", 3, 4))
sketch5.addConstraint(Sketcher.Constraint("Equal", 2, 5))
sketch5.addConstraint(Sketcher.Constraint("Equal", 5, 6))
sketch5.addConstraint(Sketcher.Constraint("Diameter", 0, 5.1))
sketch5.addConstraint(Sketcher.Constraint("Diameter", 1, 4.1))
sketch5.addConstraint(Sketcher.Constraint("DistanceY", -1, 1, 4, 3, 13.0))
sketch5.addConstraint(Sketcher.Constraint("DistanceY", 3, 3, 1, 3, 95.8))
sketch5.addConstraint(Sketcher.Constraint("DistanceX", 2, 3, 5, 3, 174.2))
sketch5.addConstraint(Sketcher.Constraint("DistanceY", 1, 3, 6, 3, 2.5))
sketch5.addConstraint(Sketcher.Constraint("DistanceY", -1, 1, 1, 3, 108.54))
sketch5.addConstraint(Sketcher.Constraint("DistanceX", -1, 1, 2, 3, 14.14))
sketch5.addConstraint(Sketcher.Constraint("DistanceY", -1, 1, 2, 3, 13.53))
sketch5.addConstraint(Sketcher.Constraint("DistanceX", -1, 1, 3, 3, 74.17))
sketch5.addConstraint(Sketcher.Constraint("DistanceX", -1, 1, 4, 3, 145.13))
sketch5.addConstraint(Sketcher.Constraint("DistanceY", -1, 1, 5, 3, 14.18))
sketch5.addConstraint(Sketcher.Constraint("DistanceX", -1, 1, 6, 3, 185.61))
sketch5.addConstraint(Sketcher.Constraint("DistanceY", -1, 1, 0, 3, 127.473311))
sketch5.addConstraint(Sketcher.Constraint("DistanceX", 0, 3, 1, 3, 41.57046))
sketch5.addConstraint(Sketcher.Constraint("DistanceX", -1, 1, 0, 3, 64.332465))
pocket3 = doc.addObject("PartDesign::Pocket", "Pocket002")
body.addObject(pocket3)
pocket3.Profile = sketch5
pocket3.Length = 6.2
doc.recompute()

fillet = doc.addObject("PartDesign::Fillet", "Fillet")
body.addObject(fillet)
fillet.Base = (pocket3, edges_at(pocket3, [
    (2.429, 0, 6.429),
    (101.005, 0, 3.5),
    (199.581, 0, 6.429),
    (202.51, 0, 61.52),
    (199.581, 0, 116.611),
    (144.951, 0, 119.54),
    (96.37, 0, 119.673),
    (81.353, 0, 128.051),
    (65.86, 0, 136.624),
    (49.852, 0, 136.823),
    (30.318, 0, 135.449),
    (14.548, 0, 110.058),
    (0.249, 0, 82.946),
    (-0.5, 0, 45.301),
]))
fillet.Radius = 3

sketch6 = doc.addObject("Sketcher::SketchObject", "Sketch005")
body.addObject(sketch6)
sketch6.AttachmentSupport = (doc.XY_Plane, [""])
sketch6.MapMode = "FlatFace"
sketch6.AttachmentOffset = App.Placement(Vector(0, 0, 119.54), App.Rotation())
sketch6.addGeometry(Part.LineSegment(Vector(117.391395, -34.5, 0), Vector(117.391395, -24.5, 0)), False)
sketch6.addGeometry(Part.LineSegment(Vector(117.391395, -24.5, 0), Vector(97.391395, -24.5, 0)), False)
sketch6.addGeometry(Part.LineSegment(Vector(97.391395, -24.5, 0), Vector(97.391395, -34.5, 0)), False)
sketch6.addGeometry(Part.LineSegment(Vector(97.391395, -34.5, 0), Vector(117.391395, -34.5, 0)), False)
sketch6.addConstraint(Sketcher.Constraint("Coincident", 0, 2, 1, 1))
sketch6.addConstraint(Sketcher.Constraint("Coincident", 1, 2, 2, 1))
sketch6.addConstraint(Sketcher.Constraint("Coincident", 2, 2, 3, 1))
sketch6.addConstraint(Sketcher.Constraint("Coincident", 3, 2, 0, 1))
sketch6.addConstraint(Sketcher.Constraint("Vertical", 0))
sketch6.addConstraint(Sketcher.Constraint("Horizontal", 1))
sketch6.addConstraint(Sketcher.Constraint("Vertical", 2))
sketch6.addConstraint(Sketcher.Constraint("Horizontal", 3))
sketch6.addConstraint(Sketcher.Constraint("DistanceX", 1, 2, 1, 1, 20.0))
sketch6.addConstraint(Sketcher.Constraint("DistanceY", 0, 1, 0, 2, 10.0))
sketch6.addConstraint(Sketcher.Constraint("DistanceY", 0, 2, -1, 1, 24.5))
sketch6.addConstraint(Sketcher.Constraint("DistanceX", -1, 1, 0, 2, 117.391395))
pocket4 = doc.addObject("PartDesign::Pocket", "Pocket003")
body.addObject(pocket4)
pocket4.Profile = sketch6
pocket4.Length = 5

sketch7 = doc.addObject("Sketcher::SketchObject", "Sketch006")
body.addObject(sketch7)
sketch7.AttachmentSupport = (doc.XY_Plane, [""])
sketch7.MapMode = "FlatFace"
sketch7.AttachmentOffset = App.Placement(Vector(0, 0, 3.5), App.Rotation())
sketch7.addGeometry(Part.LineSegment(Vector(97.391395, -34.5, 0), Vector(97.391395, -24.5, 0)), False)
sketch7.addGeometry(Part.LineSegment(Vector(97.391395, -24.5, 0), Vector(117.391395, -24.5, 0)), False)
sketch7.addGeometry(Part.LineSegment(Vector(117.391395, -24.5, 0), Vector(117.391395, -34.5, 0)), False)
sketch7.addGeometry(Part.LineSegment(Vector(117.391395, -34.5, 0), Vector(97.391395, -34.5, 0)), False)
sketch7.addConstraint(Sketcher.Constraint("Coincident", 0, 2, 1, 1))
sketch7.addConstraint(Sketcher.Constraint("Coincident", 1, 2, 2, 1))
sketch7.addConstraint(Sketcher.Constraint("Coincident", 2, 2, 3, 1))
sketch7.addConstraint(Sketcher.Constraint("Coincident", 3, 2, 0, 1))
sketch7.addConstraint(Sketcher.Constraint("Vertical", 0))
sketch7.addConstraint(Sketcher.Constraint("Horizontal", 1))
sketch7.addConstraint(Sketcher.Constraint("Vertical", 2))
sketch7.addConstraint(Sketcher.Constraint("Horizontal", 3))
sketch7.addConstraint(Sketcher.Constraint("DistanceX", 1, 1, 1, 2, 20.0))
sketch7.addConstraint(Sketcher.Constraint("DistanceY", 0, 1, 0, 2, 10.0))
sketch7.addConstraint(Sketcher.Constraint("DistanceY", 0, 2, -1, 1, 24.5))
sketch7.addConstraint(Sketcher.Constraint("DistanceX", -1, 1, 0, 2, 97.391395))
pocket5 = doc.addObject("PartDesign::Pocket", "Pocket004")
body.addObject(pocket5)
pocket5.Profile = sketch7
pocket5.Length = 5
pocket5.Reversed = True
body2 = doc.addObject("PartDesign::Body", "Body001")
doc.recompute()

body.Placement = App.Placement(Vector(0, 20.5, 0), App.Rotation(Vector(0, 0, 1), 0))
boolean = doc.addObject("PartDesign::Boolean", "Boolean")
body2.addObject(boolean)
boolean.Type = "Fuse"
boolean.addObjects([body])

doc.recompute()
